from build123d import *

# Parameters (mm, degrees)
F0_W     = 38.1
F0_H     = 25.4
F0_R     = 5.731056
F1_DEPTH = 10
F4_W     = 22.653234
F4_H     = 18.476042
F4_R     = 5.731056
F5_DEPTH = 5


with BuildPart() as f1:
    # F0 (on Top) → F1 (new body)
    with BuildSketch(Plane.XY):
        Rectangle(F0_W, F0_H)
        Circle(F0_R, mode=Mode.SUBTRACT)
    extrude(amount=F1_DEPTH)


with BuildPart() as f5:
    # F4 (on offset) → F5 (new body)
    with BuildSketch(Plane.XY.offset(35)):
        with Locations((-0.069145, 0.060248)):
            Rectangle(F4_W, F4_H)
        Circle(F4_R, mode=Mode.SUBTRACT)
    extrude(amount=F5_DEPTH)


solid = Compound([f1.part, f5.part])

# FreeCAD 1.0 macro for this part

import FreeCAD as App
import Part
import Sketcher
from FreeCAD import Vector


def add_polygon(sketch, points):
    """Adds a closed chain of lines whose ends are joined by coincident constraints."""
    first, n = sketch.GeometryCount, len(points)
    for a, b in zip(points, points[1:] + points[:1]):
        sketch.addGeometry(Part.LineSegment(App.Vector(*a, 0), App.Vector(*b, 0)), False)
    for i in range(n):
        sketch.addConstraint(Sketcher.Constraint("Coincident", first + i, 2, first + (i + 1) % n, 1))

doc = App.newDocument("Part")
params = doc.addObject("Spreadsheet::Sheet", "Params")
for row, (alias, value) in enumerate([
    ("sketch1_width", "38.1 mm"),
    ("sketch1_height", "25.4 mm"),
    ("pad1_length", "10 mm"),
    ("pad2_length", "5 mm"),
], start=1):
    params.set(f"A{row}", alias)
    params.set(f"B{row}", "=" + value)
    params.setAlias(f"B{row}", alias)

body = doc.addObject("PartDesign::Body", "Body")

# Sketch on XY plane
sketch1 = body.newObject("Sketcher::SketchObject", "Sketch")
sketch1.AttachmentSupport = (doc.getObject("XY_Plane"), [""])
sketch1.MapMode = "FlatFace"
add_polygon(sketch1, [(-19, 13), (-19, -13), (19, -13), (19, 13)])  # lines 0-3
sketch1.addGeometry(Part.Circle(Vector(0, 0, 0), Vector(0, 0, 1), 6), False)  # 4
sketch1.addConstraint(Sketcher.Constraint("Vertical", 0))
sketch1.addConstraint(Sketcher.Constraint("Horizontal", 1))
sketch1.addConstraint(Sketcher.Constraint("Vertical", 2))
sketch1.addConstraint(Sketcher.Constraint("Horizontal", 3))
sketch1.addConstraint(Sketcher.Constraint("Coincident", 4, 3, -1, 1))
sketch1.addConstraint(Sketcher.Constraint("Symmetric", 0, 2, 2, 2, -1, 1))
sketch1.addConstraint(Sketcher.Constraint("DistanceX", 1, 1, 1, 2, 38.1))
sketch1.addConstraint(Sketcher.Constraint("DistanceY", 0, 2, 0, 1, 25.4))
sketch1.addConstraint(Sketcher.Constraint("Diameter", 4, 11.462112))
sketch1.setExpression("Constraints[10]", "Params.sketch1_width")
sketch1.setExpression("Constraints[11]", "Params.sketch1_height")
pad1 = body.newObject("PartDesign::Pad", "Pad")
pad1.Profile = sketch1
pad1.setExpression("Length", "Params.pad1_length")
body2 = doc.addObject("PartDesign::Body", "Body001")

# Sketch on XY plane
sketch2 = body2.newObject("Sketcher::SketchObject", "Sketch001")
sketch2.AttachmentSupport = (doc.getObject("XY_Plane001"), [""])
sketch2.MapMode = "FlatFace"
sketch2.AttachmentOffset = App.Placement(Vector(0, 0, 35), App.Rotation())
add_polygon(sketch2, [(-11, 9), (-11, -9), (11, -9), (11, 9)])  # lines 0-3
sketch2.addGeometry(Part.Circle(Vector(0, 0, 0), Vector(0, 0, 1), 6), False)  # 4
sketch2.addConstraint(Sketcher.Constraint("Vertical", 0))
sketch2.addConstraint(Sketcher.Constraint("Horizontal", 1))
sketch2.addConstraint(Sketcher.Constraint("Vertical", 2))
sketch2.addConstraint(Sketcher.Constraint("Horizontal", 3))
sketch2.addConstraint(Sketcher.Constraint("Coincident", 4, 3, -1, 1))
sketch2.addConstraint(Sketcher.Constraint("Diameter", 4, 11.462112))
sketch2.addConstraint(Sketcher.Constraint("DistanceY", 0, 2, 0, 1, 18.476042))
sketch2.addConstraint(Sketcher.Constraint("DistanceX", 1, 1, 1, 2, 22.653234))
sketch2.addConstraint(Sketcher.Constraint("DistanceY", -1, 1, 2, 2, 9.298269))
sketch2.addConstraint(Sketcher.Constraint("DistanceX", 0, 2, -1, 1, 11.395762))
pad2 = body2.newObject("PartDesign::Pad", "Pad001")
pad2.Profile = sketch2
pad2.setExpression("Length", "Params.pad2_length")

doc.recompute()
